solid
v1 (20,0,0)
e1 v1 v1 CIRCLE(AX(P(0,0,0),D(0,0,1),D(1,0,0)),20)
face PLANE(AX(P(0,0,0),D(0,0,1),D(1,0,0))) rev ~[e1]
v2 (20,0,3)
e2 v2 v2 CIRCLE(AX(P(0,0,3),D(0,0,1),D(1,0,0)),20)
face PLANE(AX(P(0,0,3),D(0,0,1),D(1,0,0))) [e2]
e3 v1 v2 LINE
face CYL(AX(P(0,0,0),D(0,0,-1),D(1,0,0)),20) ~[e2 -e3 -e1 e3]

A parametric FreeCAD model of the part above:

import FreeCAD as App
import Part
import Sketcher
from FreeCAD import Vector

doc = App.newDocument("Part")
params = doc.addObject("Spreadsheet::Sheet", "Params")
for row, (alias, value) in enumerate([
    ("sketch1_diameter", "40 mm"),
    ("pad1_length", "3 mm"),
], start=1):
    params.set(f"A{row}", alias)
    params.set(f"B{row}", "=" + value)
    params.setAlias(f"B{row}", alias)

body = doc.addObject("PartDesign::Body", "Body")

# Sketch on XY plane
sketch1 = body.newObject("Sketcher::SketchObject", "Sketch")
sketch1.AttachmentSupport = (doc.getObject("XY_Plane"), [""])
sketch1.MapMode = "FlatFace"
sketch1.addGeometry(Part.Circle(Vector(0, 0, 0), Vector(0, 0, 1), 20), False)
sketch1.addConstraint([
    Sketcher.Constraint("Coincident", 0, 3, -1, 1),
    Sketcher.Constraint("Diameter", 0, 40.0),
])
sketch1.setExpression("Constraints[1]", "Params.sketch1_diameter")
pad1 = body.newObject("PartDesign::Pad", "Pad")
pad1.Profile = sketch1
pad1.setExpression("Length", "Params.pad1_length")

doc.recompute()
